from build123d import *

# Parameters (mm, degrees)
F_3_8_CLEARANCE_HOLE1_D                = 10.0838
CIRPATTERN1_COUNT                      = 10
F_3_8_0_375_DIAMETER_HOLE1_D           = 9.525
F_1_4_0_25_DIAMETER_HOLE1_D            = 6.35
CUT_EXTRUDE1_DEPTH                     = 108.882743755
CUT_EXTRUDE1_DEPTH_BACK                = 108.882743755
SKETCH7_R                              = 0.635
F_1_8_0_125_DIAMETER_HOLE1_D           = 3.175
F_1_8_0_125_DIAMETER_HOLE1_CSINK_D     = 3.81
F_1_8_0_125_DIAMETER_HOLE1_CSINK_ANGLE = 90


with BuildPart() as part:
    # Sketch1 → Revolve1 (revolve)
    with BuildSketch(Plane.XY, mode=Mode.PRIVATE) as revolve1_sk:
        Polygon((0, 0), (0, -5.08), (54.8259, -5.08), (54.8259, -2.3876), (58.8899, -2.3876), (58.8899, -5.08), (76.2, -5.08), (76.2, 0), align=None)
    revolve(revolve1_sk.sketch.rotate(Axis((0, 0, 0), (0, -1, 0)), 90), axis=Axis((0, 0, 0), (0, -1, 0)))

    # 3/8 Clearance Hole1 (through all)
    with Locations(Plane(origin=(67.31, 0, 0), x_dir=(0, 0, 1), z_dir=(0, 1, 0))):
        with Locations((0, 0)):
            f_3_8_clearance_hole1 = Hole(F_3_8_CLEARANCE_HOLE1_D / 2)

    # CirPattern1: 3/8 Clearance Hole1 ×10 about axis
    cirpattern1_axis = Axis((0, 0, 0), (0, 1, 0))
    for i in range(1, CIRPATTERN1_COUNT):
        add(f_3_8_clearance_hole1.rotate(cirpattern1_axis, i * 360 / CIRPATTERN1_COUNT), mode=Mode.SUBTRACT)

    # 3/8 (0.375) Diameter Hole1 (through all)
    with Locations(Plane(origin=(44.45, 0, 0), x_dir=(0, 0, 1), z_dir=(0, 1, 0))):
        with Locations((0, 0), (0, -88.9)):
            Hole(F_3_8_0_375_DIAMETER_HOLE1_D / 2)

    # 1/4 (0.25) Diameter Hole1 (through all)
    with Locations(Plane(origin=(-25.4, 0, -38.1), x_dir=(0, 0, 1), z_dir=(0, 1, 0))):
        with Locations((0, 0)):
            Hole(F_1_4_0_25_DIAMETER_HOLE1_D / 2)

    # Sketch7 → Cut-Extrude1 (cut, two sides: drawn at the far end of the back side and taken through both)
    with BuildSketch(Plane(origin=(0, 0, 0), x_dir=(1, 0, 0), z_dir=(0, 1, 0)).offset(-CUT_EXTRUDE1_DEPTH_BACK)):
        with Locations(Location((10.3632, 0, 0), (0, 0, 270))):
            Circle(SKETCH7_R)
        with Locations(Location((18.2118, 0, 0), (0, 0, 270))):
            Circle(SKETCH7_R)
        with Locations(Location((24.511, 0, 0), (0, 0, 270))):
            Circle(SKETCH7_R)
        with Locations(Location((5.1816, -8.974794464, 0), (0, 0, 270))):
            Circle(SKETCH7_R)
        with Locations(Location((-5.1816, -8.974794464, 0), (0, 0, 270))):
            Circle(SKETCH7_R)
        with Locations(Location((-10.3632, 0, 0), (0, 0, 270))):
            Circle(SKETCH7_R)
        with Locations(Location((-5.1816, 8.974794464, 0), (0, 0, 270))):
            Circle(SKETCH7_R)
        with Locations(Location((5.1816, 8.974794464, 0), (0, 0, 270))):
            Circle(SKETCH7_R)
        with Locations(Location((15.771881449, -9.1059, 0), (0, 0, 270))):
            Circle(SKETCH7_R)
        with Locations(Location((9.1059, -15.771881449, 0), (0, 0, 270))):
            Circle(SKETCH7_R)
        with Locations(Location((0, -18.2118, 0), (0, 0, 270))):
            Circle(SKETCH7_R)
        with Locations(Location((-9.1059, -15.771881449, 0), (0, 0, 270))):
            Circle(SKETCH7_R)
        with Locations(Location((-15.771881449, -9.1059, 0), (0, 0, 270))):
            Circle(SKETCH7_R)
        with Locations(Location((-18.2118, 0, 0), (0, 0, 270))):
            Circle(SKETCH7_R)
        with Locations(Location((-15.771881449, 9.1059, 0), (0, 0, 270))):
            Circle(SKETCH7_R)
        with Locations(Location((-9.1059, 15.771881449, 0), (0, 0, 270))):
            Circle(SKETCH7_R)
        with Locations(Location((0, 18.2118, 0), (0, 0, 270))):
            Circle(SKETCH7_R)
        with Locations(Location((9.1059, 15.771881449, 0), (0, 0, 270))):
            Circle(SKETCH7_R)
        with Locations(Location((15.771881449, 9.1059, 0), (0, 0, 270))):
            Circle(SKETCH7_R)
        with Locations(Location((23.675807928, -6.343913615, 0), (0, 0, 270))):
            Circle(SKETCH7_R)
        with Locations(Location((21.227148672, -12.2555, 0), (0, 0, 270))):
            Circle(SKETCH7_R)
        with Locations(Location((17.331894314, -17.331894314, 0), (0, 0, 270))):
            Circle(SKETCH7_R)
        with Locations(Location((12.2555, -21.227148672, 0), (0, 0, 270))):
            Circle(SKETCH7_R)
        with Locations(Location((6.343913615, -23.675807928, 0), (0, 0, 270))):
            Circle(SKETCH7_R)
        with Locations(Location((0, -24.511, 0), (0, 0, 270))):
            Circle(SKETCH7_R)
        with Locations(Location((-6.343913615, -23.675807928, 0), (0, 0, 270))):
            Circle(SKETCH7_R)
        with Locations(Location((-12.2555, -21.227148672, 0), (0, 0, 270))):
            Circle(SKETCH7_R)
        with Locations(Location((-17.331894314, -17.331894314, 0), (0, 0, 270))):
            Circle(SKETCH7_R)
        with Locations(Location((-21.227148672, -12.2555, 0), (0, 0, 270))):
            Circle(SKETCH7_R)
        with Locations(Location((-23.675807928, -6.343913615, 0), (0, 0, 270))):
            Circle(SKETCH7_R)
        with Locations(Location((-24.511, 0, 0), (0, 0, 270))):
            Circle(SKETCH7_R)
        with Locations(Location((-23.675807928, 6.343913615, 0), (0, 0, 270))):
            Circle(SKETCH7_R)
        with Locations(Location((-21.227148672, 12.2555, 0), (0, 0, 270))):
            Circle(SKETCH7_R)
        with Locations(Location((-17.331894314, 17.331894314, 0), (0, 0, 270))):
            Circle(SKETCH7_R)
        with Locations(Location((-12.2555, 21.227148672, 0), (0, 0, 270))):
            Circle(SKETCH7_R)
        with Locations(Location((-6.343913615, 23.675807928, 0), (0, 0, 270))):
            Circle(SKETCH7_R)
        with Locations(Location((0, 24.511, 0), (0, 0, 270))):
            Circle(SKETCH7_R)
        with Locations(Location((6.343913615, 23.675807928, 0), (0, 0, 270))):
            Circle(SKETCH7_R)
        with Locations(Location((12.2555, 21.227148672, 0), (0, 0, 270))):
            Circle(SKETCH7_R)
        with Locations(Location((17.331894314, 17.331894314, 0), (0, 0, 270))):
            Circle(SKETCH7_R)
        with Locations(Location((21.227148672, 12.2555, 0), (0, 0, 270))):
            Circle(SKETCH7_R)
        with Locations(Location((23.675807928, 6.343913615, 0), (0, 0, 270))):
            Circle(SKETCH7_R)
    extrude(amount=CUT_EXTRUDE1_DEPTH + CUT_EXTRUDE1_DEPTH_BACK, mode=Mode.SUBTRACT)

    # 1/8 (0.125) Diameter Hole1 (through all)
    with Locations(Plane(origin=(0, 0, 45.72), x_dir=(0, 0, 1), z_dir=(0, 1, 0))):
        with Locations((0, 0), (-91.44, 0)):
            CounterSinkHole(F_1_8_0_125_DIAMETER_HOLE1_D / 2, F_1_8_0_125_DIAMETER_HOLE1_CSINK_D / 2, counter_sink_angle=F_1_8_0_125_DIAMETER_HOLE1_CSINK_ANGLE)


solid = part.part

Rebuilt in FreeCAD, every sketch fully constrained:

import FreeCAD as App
import Part
import Sketcher
from FreeCAD import Vector
Q = App.Units.Quantity

doc = App.newDocument("Part")
body = doc.addObject("PartDesign::Body", "Body")

sketch1 = body.newObject("Sketcher::SketchObject", "Sketch")
sketch1.AttachmentSupport = (doc.getObject("XY_Plane"), [""])
sketch1.MapMode = "FlatFace"
sketch1.addGeometry([
    Part.LineSegment(Vector(0, 0, 0), Vector(0, -5.1, 0)),
    Part.LineSegment(Vector(0, -5.1, 0), Vector(54.8, -5.1, 0)),
    Part.LineSegment(Vector(54.8, -5.1, 0), Vector(54.8, -2.4, 0)),
    Part.LineSegment(Vector(54.8, -2.4, 0), Vector(58.9, -2.4, 0)),
    Part.LineSegment(Vector(58.9, -2.4, 0), Vector(58.9, -5.1, 0)),
    Part.LineSegment(Vector(58.9, -5.1, 0), Vector(76.2, -5.1, 0)),
    Part.LineSegment(Vector(76.2, -5.1, 0), Vector(76.2, 0, 0)),
    Part.LineSegment(Vector(76.2, 0, 0), Vector(0, 0, 0)),
], False)
sketch1.addConstraint([
    Sketcher.Constraint("Coincident", 0, 2, 1, 1),
    Sketcher.Constraint("Coincident", 1, 2, 2, 1),
    Sketcher.Constraint("Coincident", 2, 2, 3, 1),
    Sketcher.Constraint("Coincident", 3, 2, 4, 1),
    Sketcher.Constraint("Coincident", 4, 2, 5, 1),
    Sketcher.Constraint("Coincident", 5, 2, 6, 1),
    Sketcher.Constraint("Coincident", 6, 2, 7, 1),
    Sketcher.Constraint("Coincident", 7, 2, 0, 1),
    Sketcher.Constraint("Vertical", 0),
    Sketcher.Constraint("Horizontal", 1),
    Sketcher.Constraint("Vertical", 2),
    Sketcher.Constraint("Horizontal", 3),
    Sketcher.Constraint("Vertical", 4),
    Sketcher.Constraint("Horizontal", 5),
    Sketcher.Constraint("Vertical", 6),
    Sketcher.Constraint("Horizontal", 7),
    Sketcher.Constraint("Coincident", 7, 2, -1, 1),
    Sketcher.Constraint("Horizontal", 1, 2, 4, 2),
    Sketcher.Constraint("DistanceX", 7, 2, 7, 1, Q("3 in")),
    Sketcher.Constraint("DistanceY", 0, 2, 0, 1, Q("0.2 in")),
    Sketcher.Constraint("DistanceX", 3, 1, 3, 2, Q("0.16 in")),
    Sketcher.Constraint("DistanceY", 2, 1, 2, 2, Q("0.106 in")),
    Sketcher.Constraint("DistanceX", 1, 1, 1, 2, Q("2.1585 in")),
])
revolution = body.newObject("PartDesign::Revolution", "Revolution")
revolution.Profile = sketch1
revolution.ReferenceAxis = (sketch1, ["V_Axis"])
revolution.Angle = 360

sketch2 = body.newObject("Sketcher::SketchObject", "Sketch001")
sketch2.AttachmentSupport = (doc.getObject("XZ_Plane"), [""])
sketch2.MapMode = "FlatFace"
sketch2.addGeometry(Part.Circle(Vector(67, 0, 0), Vector(0, 0, 1), 5), False)
sketch2.addConstraint([
    Sketcher.Constraint("PointOnObject", 0, 3, -1),
    Sketcher.Constraint("Diameter", 0, Q("0.397 in")),
    Sketcher.Constraint("DistanceX", -1, 1, 0, 3, Q("2.65 in")),
])
doc.recompute()
hole = body.newObject("PartDesign::Hole", "Hole")
hole.Profile = sketch2
hole.ThreadType = "None"
hole.Diameter = Q("0.397 in")
hole.DepthType = "ThroughAll"
hole.Reversed = True
doc.recompute()

polarpattern = body.newObject("PartDesign::PolarPattern", "PolarPattern")
polarpattern.Originals = [hole]
polarpattern.Axis = (doc.getObject("Y_Axis"), [""])
polarpattern.Angle = 360
polarpattern.Occurrences = 10
body.Tip = polarpattern

sketch3 = body.newObject("Sketcher::SketchObject", "Sketch002")
sketch3.AttachmentSupport = (doc.getObject("XZ_Plane"), [""])
sketch3.MapMode = "FlatFace"
sketch3.addGeometry([
    Part.Circle(Vector(44.5, 0, 0), Vector(0, 0, 1), 4.8),
    Part.Circle(Vector(-44.5, 0, 0), Vector(0, 0, 1), 4.8),
], False)
sketch3.addConstraint([
    Sketcher.Constraint("Equal", 0, 1),
    Sketcher.Constraint("Symmetric", 0, 3, 1, 3, -1, 1),
    Sketcher.Constraint("PointOnObject", 0, 3, -1),
    Sketcher.Constraint("Diameter", 0, Q("0.375 in")),
    Sketcher.Constraint("DistanceX", 1, 3, 0, 3, Q("3.5 in")),
])
doc.recompute()
hole2 = body.newObject("PartDesign::Hole", "Hole001")
hole2.Profile = sketch3
hole2.ThreadType = "None"
hole2.Diameter = Q("0.375 in")
hole2.DepthType = "ThroughAll"
hole2.Reversed = True

sketch4 = body.newObject("Sketcher::SketchObject", "Sketch003")
sketch4.AttachmentSupport = (doc.getObject("XZ_Plane"), [""])
sketch4.MapMode = "FlatFace"
sketch4.addGeometry(Part.Circle(Vector(-25.4, -38.1, 0), Vector(0, 0, 1), 3.2), False)
sketch4.addConstraint([
    Sketcher.Constraint("Diameter", 0, Q("0.25 in")),
    Sketcher.Constraint("DistanceX", 0, 3, -1, 1, Q("1 in")),
    Sketcher.Constraint("DistanceY", 0, 3, -1, 1, Q("1.5 in")),
])
doc.recompute()
hole3 = body.newObject("PartDesign::Hole", "Hole002")
hole3.Profile = sketch4
hole3.ThreadType = "None"
hole3.Diameter = Q("0.25 in")
hole3.DepthType = "ThroughAll"
hole3.Reversed = True

sketch5 = body.newObject("Sketcher::SketchObject", "Sketch004")
sketch5.AttachmentSupport = (doc.getObject("XZ_Plane"), [""])
sketch5.MapMode = "FlatFace"
sketch5.addGeometry([
    Part.Circle(Vector(10.4, 0, 0), Vector(0, 0, 1), 0.6),
    Part.Circle(Vector(18.2, 0, 0), Vector(0, 0, 1), 0.6),
    Part.Circle(Vector(24.5, 0, 0), Vector(0, 0, 1), 0.6),
    Part.Circle(Vector(5.2, 9, 0), Vector(0, 0, 1), 0.6),
    Part.Circle(Vector(-5.2, 9, 0), Vector(0, 0, 1), 0.6),
    Part.Circle(Vector(-10.4, 0, 0), Vector(0, 0, 1), 0.6),
    Part.Circle(Vector(-5.2, -9, 0), Vector(0, 0, 1), 0.6),
    Part.Circle(Vector(5.2, -9, 0), Vector(0, 0, 1), 0.6),
    Part.Circle(Vector(15.8, 9.1, 0), Vector(0, 0, 1), 0.6),
    Part.Circle(Vector(9.1, 15.8, 0), Vector(0, 0, 1), 0.6),
    Part.Circle(Vector(0, 18.2, 0), Vector(0, 0, 1), 0.6),
    Part.Circle(Vector(-9.1, 15.8, 0), Vector(0, 0, 1), 0.6),
    Part.Circle(Vector(-15.8, 9.1, 0), Vector(0, 0, 1), 0.6),
    Part.Circle(Vector(-18.2, 0, 0), Vector(0, 0, 1), 0.6),
    Part.Circle(Vector(-15.8, -9.1, 0), Vector(0, 0, 1), 0.6),
    Part.Circle(Vector(-9.1, -15.8, 0), Vector(0, 0, 1), 0.6),
    Part.Circle(Vector(0, -18.2, 0), Vector(0, 0, 1), 0.6),
    Part.Circle(Vector(9.1, -15.8, 0), Vector(0, 0, 1), 0.6),
    Part.Circle(Vector(15.8, -9.1, 0), Vector(0, 0, 1), 0.6),
    Part.Circle(Vector(23.7, 6.3, 0), Vector(0, 0, 1), 0.6),
    Part.Circle(Vector(21.2, 12.3, 0), Vector(0, 0, 1), 0.6),
    Part.Circle(Vector(17.3, 17.3, 0), Vector(0, 0, 1), 0.6),
    Part.Circle(Vector(12.3, 21.2, 0), Vector(0, 0, 1), 0.6),
    Part.Circle(Vector(6.3, 23.7, 0), Vector(0, 0, 1), 0.6),
    Part.Circle(Vector(0, 24.5, 0), Vector(0, 0, 1), 0.6),
    Part.Circle(Vector(-6.3, 23.7, 0), Vector(0, 0, 1), 0.6),
    Part.Circle(Vector(-12.3, 21.2, 0), Vector(0, 0, 1), 0.6),
    Part.Circle(Vector(-17.3, 17.3, 0), Vector(0, 0, 1), 0.6),
    Part.Circle(Vector(-21.2, 12.3, 0), Vector(0, 0, 1), 0.6),
    Part.Circle(Vector(-23.7, 6.3, 0), Vector(0, 0, 1), 0.6),
    Part.Circle(Vector(-24.5, 0, 0), Vector(0, 0, 1), 0.6),
    Part.Circle(Vector(-23.7, -6.3, 0), Vector(0, 0, 1), 0.6),
    Part.Circle(Vector(-21.2, -12.3, 0), Vector(0, 0, 1), 0.6),
    Part.Circle(Vector(-17.3, -17.3, 0), Vector(0, 0, 1), 0.6),
    Part.Circle(Vector(-12.3, -21.2, 0), Vector(0, 0, 1), 0.6),
    Part.Circle(Vector(-6.3, -23.7, 0), Vector(0, 0, 1), 0.6),
    Part.Circle(Vector(0, -24.5, 0), Vector(0, 0, 1), 0.6),
    Part.Circle(Vector(6.3, -23.7, 0), Vector(0, 0, 1), 0.6),
    Part.Circle(Vector(12.3, -21.2, 0), Vector(0, 0, 1), 0.6),
    Part.Circle(Vector(17.3, -17.3, 0), Vector(0, 0, 1), 0.6),
    Part.Circle(Vector(21.2, -12.3, 0), Vector(0, 0, 1), 0.6),
    Part.Circle(Vector(23.7, -6.3, 0), Vector(0, 0, 1), 0.6),
], False)
sketch5.addConstraint([
    Sketcher.Constraint("Equal", 0, 1),
    Sketcher.Constraint("Equal", 1, 2),
    Sketcher.Constraint("Equal", 2, 3),
    Sketcher.Constraint("Equal", 3, 4),
    Sketcher.Constraint("Equal", 4, 5),
    Sketcher.Constraint("Equal", 5, 6),
    Sketcher.Constraint("Equal", 6, 7),
    Sketcher.Constraint("Equal", 7, 8),
    Sketcher.Constraint("Equal", 8, 9),
    Sketcher.Constraint("Equal", 9, 10),
    Sketcher.Constraint("Equal", 10, 11),
    Sketcher.Constraint("Equal", 11, 12),
    Sketcher.Constraint("Equal", 12, 13),
    Sketcher.Constraint("Equal", 13, 14),
    Sketcher.Constraint("Equal", 14, 15),
    Sketcher.Constraint("Equal", 15, 16),
    Sketcher.Constraint("Equal", 16, 17),
    Sketcher.Constraint("Equal", 17, 18),
    Sketcher.Constraint("Equal", 18, 19),
    Sketcher.Constraint("Equal", 19, 20),
    Sketcher.Constraint("Equal", 20, 21),
    Sketcher.Constraint("Equal", 21, 22),
    Sketcher.Constraint("Equal", 22, 23),
    Sketcher.Constraint("Equal", 23, 24),
    Sketcher.Constraint("Equal", 24, 25),
    Sketcher.Constraint("Equal", 25, 26),
    Sketcher.Constraint("Equal", 26, 27),
    Sketcher.Constraint("Equal", 27, 28),
    Sketcher.Constraint("Equal", 28, 29),
    Sketcher.Constraint("Equal", 29, 30),
    Sketcher.Constraint("Equal", 30, 31),
    Sketcher.Constraint("Equal", 31, 32),
    Sketcher.Constraint("Equal", 32, 33),
    Sketcher.Constraint("Equal", 33, 34),
    Sketcher.Constraint("Equal", 34, 35),
    Sketcher.Constraint("Equal", 35, 36),
    Sketcher.Constraint("Equal", 36, 37),
    Sketcher.Constraint("Equal", 37, 38),
    Sketcher.Constraint("Equal", 38, 39),
    Sketcher.Constraint("Equal", 39, 40),
    Sketcher.Constraint("Equal", 40, 41),
    Sketcher.Constraint("Symmetric", 0, 3, 5, 3, -1, 1),
    Sketcher.Constraint("Symmetric", 3, 3, 6, 3, -1, 1),
    Sketcher.Constraint("Symmetric", 4, 3, 7, 3, -1, 1),
    Sketcher.Constraint("Symmetric", 1, 3, 13, 3, -1, 1),
    Sketcher.Constraint("Symmetric", 8, 3, 14, 3, -1, 1),
    Sketcher.Constraint("Symmetric", 9, 3, 15, 3, -1, 1),
    Sketcher.Constraint("Symmetric", 10, 3, 16, 3, -1, 1),
    Sketcher.Constraint("Symmetric", 11, 3, 17, 3, -1, 1),
    Sketcher.Constraint("Symmetric", 12, 3, 18, 3, -1, 1),
    Sketcher.Constraint("Symmetric", 2, 3, 30, 3, -1, 1),
    Sketcher.Constraint("Symmetric", 19, 3, 31, 3, -1, 1),
    Sketcher.Constraint("Symmetric", 20, 3, 32, 3, -1, 1),
    Sketcher.Constraint("Symmetric", 21, 3, 33, 3, -1, 1),
    Sketcher.Constraint("Symmetric", 22, 3, 34, 3, -1, 1),
    Sketcher.Constraint("Symmetric", 23, 3, 35, 3, -1, 1),
    Sketcher.Constraint("Symmetric", 24, 3, 36, 3, -1, 1),
    Sketcher.Constraint("Symmetric", 25, 3, 37, 3, -1, 1),
    Sketcher.Constraint("Symmetric", 26, 3, 38, 3, -1, 1),
    Sketcher.Constraint("Symmetric", 27, 3, 39, 3, -1, 1),
    Sketcher.Constraint("Symmetric", 28, 3, 40, 3, -1, 1),
    Sketcher.Constraint("Symmetric", 29, 3, 41, 3, -1, 1),
    Sketcher.Constraint("Symmetric", 3, 3, 4, 3, -2),
    Sketcher.Constraint("Symmetric", 9, 3, 11, 3, -2),
    Sketcher.Constraint("Symmetric", 8, 3, 12, 3, -2),
    Sketcher.Constraint("Symmetric", 23, 3, 25, 3, -2),
    Sketcher.Constraint("Symmetric", 22, 3, 26, 3, -2),
    Sketcher.Constraint("Symmetric", 21, 3, 27, 3, -2),
    Sketcher.Constraint("Symmetric", 20, 3, 28, 3, -2),
    Sketcher.Constraint("Symmetric", 19, 3, 29, 3, -2),
    Sketcher.Constraint("PointOnObject", 0, 3, -1),
    Sketcher.Constraint("PointOnObject", 1, 3, -1),
    Sketcher.Constraint("PointOnObject", 2, 3, -1),
    Sketcher.Constraint("PointOnObject", 10, 3, -2),
    Sketcher.Constraint("PointOnObject", 24, 3, -2),
    Sketcher.Constraint("Diameter", 0, Q("0.05 in")),
    Sketcher.Constraint("DistanceX", -1, 1, 0, 3, Q("0.408 in")),
    Sketcher.Constraint("DistanceX", -1, 1, 1, 3, Q("0.717 in")),
    Sketcher.Constraint("DistanceX", -1, 1, 2, 3, Q("0.965 in")),
    Sketcher.Constraint("DistanceX", -1, 1, 3, 3, Q("0.204 in")),
    Sketcher.Constraint("DistanceY", -1, 1, 10, 3, Q("0.717 in")),
    Sketcher.Constraint("DistanceY", -1, 1, 24, 3, Q("0.965 in")),
    Sketcher.Constraint("DistanceX", 4, 3, 9, 3, Q("0.5625 in")),
    Sketcher.Constraint("DistanceY", 14, 3, 12, 3, Q("0.717 in")),
    Sketcher.Constraint("DistanceY", 8, 3, 20, 3, Q("0.124 in")),
    Sketcher.Constraint("DistanceX", 9, 3, 22, 3, Q("0.124 in")),
    Sketcher.Constraint("DistanceY", 3, 3, 21, 3, Q("8.3571 mm")),
    Sketcher.Constraint("DistanceX", -1, 1, 8, 3, Q("15.771881 mm")),
    Sketcher.Constraint("DistanceY", -1, 1, 9, 3, Q("15.771881 mm")),
    Sketcher.Constraint("DistanceX", -1, 1, 20, 3, Q("21.227149 mm")),
    Sketcher.Constraint("DistanceY", -1, 1, 22, 3, Q("21.227149 mm")),
    Sketcher.Constraint("DistanceY", 6, 3, 4, 3, Q("17.949589 mm")),
    Sketcher.Constraint("DistanceX", 20, 3, 19, 3, Q("2.448659 mm")),
    Sketcher.Constraint("DistanceY", 19, 3, 21, 3, Q("10.987981 mm")),
    Sketcher.Constraint("DistanceY", 22, 3, 23, 3, Q("2.448659 mm")),
    Sketcher.Constraint("DistanceX", 23, 3, 21, 3, Q("10.987981 mm")),
    Sketcher.Constraint("DistanceX", -1, 1, 21, 3, Q("17.331894 mm")),
])
pocket1 = body.newObject("PartDesign::Pocket", "Pocket")
pocket1.Profile = sketch5
pocket1.Type = "ThroughAll"
pocket1.Midplane = True

sketch6 = body.newObject("Sketcher::SketchObject", "Sketch005")
sketch6.AttachmentSupport = (doc.getObject("XZ_Plane"), [""])
sketch6.MapMode = "FlatFace"
sketch6.addGeometry([
    Part.Circle(Vector(0, 45.7, 0), Vector(0, 0, 1), 1.6),
    Part.Circle(Vector(0, -45.7, 0), Vector(0, 0, 1), 1.6),
], False)
sketch6.addConstraint([
    Sketcher.Constraint("Equal", 0, 1),
    Sketcher.Constraint("Symmetric", 0, 3, 1, 3, -1, 1),
    Sketcher.Constraint("PointOnObject", 0, 3, -2),
    Sketcher.Constraint("Diameter", 0, Q("0.125 in")),
    Sketcher.Constraint("DistanceY", -1, 1, 0, 3, Q("1.8 in")),
])
doc.recompute()
hole4 = body.newObject("PartDesign::Hole", "Hole003")
hole4.Profile = sketch6
hole4.ThreadType = "None"
hole4.Diameter = Q("0.125 in")
hole4.DepthType = "ThroughAll"
hole4.HoleCutType = "Countersink"
hole4.HoleCutDiameter = Q("0.15 in")
hole4.HoleCutCountersinkAngle = 90
hole4.Reversed = True

doc.recompute()
